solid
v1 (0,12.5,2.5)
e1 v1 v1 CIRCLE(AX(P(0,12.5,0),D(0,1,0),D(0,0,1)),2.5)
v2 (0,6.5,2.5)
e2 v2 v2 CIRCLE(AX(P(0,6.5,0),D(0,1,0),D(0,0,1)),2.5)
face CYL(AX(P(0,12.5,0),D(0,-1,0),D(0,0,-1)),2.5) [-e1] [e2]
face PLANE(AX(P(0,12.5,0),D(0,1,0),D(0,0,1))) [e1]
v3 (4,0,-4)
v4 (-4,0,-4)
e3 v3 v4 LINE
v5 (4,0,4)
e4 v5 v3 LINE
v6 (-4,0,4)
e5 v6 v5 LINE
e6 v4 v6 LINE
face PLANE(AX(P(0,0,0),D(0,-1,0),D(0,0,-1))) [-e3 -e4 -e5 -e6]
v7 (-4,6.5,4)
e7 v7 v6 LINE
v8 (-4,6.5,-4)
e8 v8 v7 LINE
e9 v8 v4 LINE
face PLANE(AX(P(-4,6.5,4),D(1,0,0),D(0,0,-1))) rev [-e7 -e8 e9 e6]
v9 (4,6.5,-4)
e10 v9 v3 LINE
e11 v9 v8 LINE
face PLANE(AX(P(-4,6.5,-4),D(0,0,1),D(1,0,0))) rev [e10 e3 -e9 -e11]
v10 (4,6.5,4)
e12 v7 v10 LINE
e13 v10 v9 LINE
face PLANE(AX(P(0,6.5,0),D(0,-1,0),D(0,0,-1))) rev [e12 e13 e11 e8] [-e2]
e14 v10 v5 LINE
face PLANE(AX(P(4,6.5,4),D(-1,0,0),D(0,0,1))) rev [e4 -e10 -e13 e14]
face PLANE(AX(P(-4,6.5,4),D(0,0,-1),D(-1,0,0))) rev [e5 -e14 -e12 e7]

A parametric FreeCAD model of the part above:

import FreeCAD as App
import Part
import Sketcher
from FreeCAD import Vector

doc = App.newDocument("Part")
body = doc.addObject("PartDesign::Body", "Body")

# Sketch on XZ plane
sketch1 = body.newObject("Sketcher::SketchObject", "Sketch")
sketch1.AttachmentSupport = (doc.getObject("XZ_Plane"), [""])
sketch1.MapMode = "FlatFace"
sketch1.addGeometry([
    Part.LineSegment(Vector(-4, -4, 0), Vector(-4, 4, 0)),
    Part.LineSegment(Vector(-4, 4, 0), Vector(4, 4, 0)),
    Part.LineSegment(Vector(4, 4, 0), Vector(4, -4, 0)),
    Part.LineSegment(Vector(4, -4, 0), Vector(-4, -4, 0)),
], False)
sketch1.addConstraint([
    Sketcher.Constraint("Coincident", 0, 2, 1, 1),
    Sketcher.Constraint("Coincident", 1, 2, 2, 1),
    Sketcher.Constraint("Coincident", 2, 2, 3, 1),
    Sketcher.Constraint("Coincident", 3, 2, 0, 1),
    Sketcher.Constraint("Vertical", 0),
    Sketcher.Constraint("Horizontal", 1),
    Sketcher.Constraint("Vertical", 2),
    Sketcher.Constraint("Horizontal", 3),
    Sketcher.Constraint("Symmetric", 0, 2, 2, 2, -1, 1),
    Sketcher.Constraint("Equal", 3, 0),
    Sketcher.Constraint("DistanceX", 1, 1, 1, 2, 8.0),
])
pad1 = body.newObject("PartDesign::Pad", "Pad")
pad1.Profile = sketch1
pad1.Length = 6.5
pad1.Reversed = True

# Sketch on XZ plane
sketch2 = body.newObject("Sketcher::SketchObject", "Sketch001")
sketch2.AttachmentSupport = (doc.getObject("XZ_Plane"), [""])
sketch2.MapMode = "FlatFace"
sketch2.AttachmentOffset = App.Placement(Vector(0, 0, -6.5), App.Rotation())
sketch2.addGeometry(Part.Circle(Vector(0, 0, 0), Vector(0, 0, 1), 2.5), False)
sketch2.addConstraint([
    Sketcher.Constraint("Coincident", 0, 3, -1, 1),
    Sketcher.Constraint("Diameter", 0, 5.0),
])
pad2 = body.newObject("PartDesign::Pad", "Pad001")
pad2.Profile = sketch2
pad2.Length = 6
pad2.Reversed = True

doc.recompute()
